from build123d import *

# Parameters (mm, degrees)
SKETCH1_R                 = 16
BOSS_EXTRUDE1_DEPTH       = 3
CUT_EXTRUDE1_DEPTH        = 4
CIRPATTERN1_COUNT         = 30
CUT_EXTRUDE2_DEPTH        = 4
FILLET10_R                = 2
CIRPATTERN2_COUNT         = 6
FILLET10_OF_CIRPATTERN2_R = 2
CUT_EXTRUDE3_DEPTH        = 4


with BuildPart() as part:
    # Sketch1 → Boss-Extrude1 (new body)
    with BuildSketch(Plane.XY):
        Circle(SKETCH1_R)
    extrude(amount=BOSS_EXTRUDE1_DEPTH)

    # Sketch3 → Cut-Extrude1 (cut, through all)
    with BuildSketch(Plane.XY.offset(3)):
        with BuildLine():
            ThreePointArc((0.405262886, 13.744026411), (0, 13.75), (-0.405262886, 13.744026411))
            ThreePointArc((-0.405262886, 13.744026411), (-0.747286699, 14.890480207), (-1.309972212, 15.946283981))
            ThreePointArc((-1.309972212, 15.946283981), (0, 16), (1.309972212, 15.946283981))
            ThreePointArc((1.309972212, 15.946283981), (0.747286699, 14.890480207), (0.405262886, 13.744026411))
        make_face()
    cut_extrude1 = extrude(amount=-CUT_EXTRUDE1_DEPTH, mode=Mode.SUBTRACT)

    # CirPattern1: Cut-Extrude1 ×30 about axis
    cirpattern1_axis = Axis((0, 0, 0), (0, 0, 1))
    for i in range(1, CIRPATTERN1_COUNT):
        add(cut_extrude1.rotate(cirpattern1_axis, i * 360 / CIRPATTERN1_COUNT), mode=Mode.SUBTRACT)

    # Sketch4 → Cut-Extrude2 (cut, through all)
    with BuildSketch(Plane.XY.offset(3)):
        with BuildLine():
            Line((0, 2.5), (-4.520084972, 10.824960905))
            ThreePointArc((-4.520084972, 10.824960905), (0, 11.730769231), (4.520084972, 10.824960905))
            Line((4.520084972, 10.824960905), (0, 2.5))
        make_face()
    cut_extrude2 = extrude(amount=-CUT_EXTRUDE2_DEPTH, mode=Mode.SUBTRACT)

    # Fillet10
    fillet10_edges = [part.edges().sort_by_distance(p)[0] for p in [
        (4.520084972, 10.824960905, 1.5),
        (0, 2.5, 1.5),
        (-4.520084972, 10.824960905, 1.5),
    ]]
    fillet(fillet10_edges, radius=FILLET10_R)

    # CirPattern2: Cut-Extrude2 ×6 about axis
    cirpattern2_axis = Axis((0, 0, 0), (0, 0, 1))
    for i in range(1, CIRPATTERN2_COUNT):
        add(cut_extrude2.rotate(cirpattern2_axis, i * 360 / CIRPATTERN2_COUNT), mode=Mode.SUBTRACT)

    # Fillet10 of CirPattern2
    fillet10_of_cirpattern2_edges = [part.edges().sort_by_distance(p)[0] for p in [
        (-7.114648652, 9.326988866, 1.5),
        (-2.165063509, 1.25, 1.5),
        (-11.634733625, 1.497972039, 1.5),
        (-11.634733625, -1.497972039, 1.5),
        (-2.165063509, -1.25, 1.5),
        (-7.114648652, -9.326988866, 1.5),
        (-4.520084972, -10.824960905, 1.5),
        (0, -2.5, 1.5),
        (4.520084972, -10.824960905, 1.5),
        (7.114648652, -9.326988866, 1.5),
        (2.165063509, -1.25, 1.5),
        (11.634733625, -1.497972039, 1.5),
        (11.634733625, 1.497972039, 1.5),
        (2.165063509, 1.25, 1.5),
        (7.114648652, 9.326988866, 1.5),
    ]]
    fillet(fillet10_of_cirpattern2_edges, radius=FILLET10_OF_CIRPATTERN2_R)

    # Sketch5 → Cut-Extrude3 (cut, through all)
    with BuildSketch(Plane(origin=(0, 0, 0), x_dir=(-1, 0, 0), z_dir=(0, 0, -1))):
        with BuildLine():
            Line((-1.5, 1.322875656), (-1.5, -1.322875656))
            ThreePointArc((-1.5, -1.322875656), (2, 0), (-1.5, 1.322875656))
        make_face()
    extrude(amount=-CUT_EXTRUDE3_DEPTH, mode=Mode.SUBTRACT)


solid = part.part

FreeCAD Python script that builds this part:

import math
import FreeCAD as App
import Part
import Sketcher

V = App.Vector
Q = App.Units.Quantity


def edges_at(feature, points):
    """Names of the edges that pass closest to the given points."""
    edges = feature.Shape.Edges
    near = lambda p: min(range(len(edges)), key=lambda i: edges[i].distToShape(Part.Vertex(*p))[0])
    return sorted({f"Edge{near(p) + 1}" for p in points})

doc = App.newDocument("Part")
params = doc.addObject("Spreadsheet::Sheet", "Params")
for row, (alias, value) in enumerate([
    ("sketch1_diameter", "32 mm"),
    ("pad1_length", "3 mm"),
    ("sketch2_radius", "6 mm"),
    ("sketch2_radius2", "16 mm"),
    ("sketch2_radius3", "13.749999 mm"),
    ("fillet_radius", "2 mm"),
    ("fillet2_radius", "2 mm"),
    ("sketch4_radius", "2 mm"),
], start=1):
    params.set(f"A{row}", alias)
    params.set(f"B{row}", "=" + value)
    params.setAlias(f"B{row}", alias)

body = doc.addObject("PartDesign::Body", "Body")

sketch1 = doc.addObject("Sketcher::SketchObject", "Sketch")
body.addObject(sketch1)
sketch1.AttachmentSupport = (doc.XY_Plane, [""])
sketch1.MapMode = "FlatFace"
sketch1.addGeometry(Part.Circle(V(0, 0, 0), V(0, 0, 1), 16), False)
sketch1.addConstraint(Sketcher.Constraint("Coincident", 0, 3, -1, 1))
sketch1.addConstraint(Sketcher.Constraint("Diameter", 0, 32.0))
sketch1.setExpression("Constraints[1]", "Params.sketch1_diameter")
pad1 = doc.addObject("PartDesign::Pad", "Pad")
body.addObject(pad1)
pad1.Profile = sketch1
pad1.setExpression("Length", "Params.pad1_length")

sketch2 = doc.addObject("Sketcher::SketchObject", "Sketch001")
body.addObject(sketch2)
sketch2.AttachmentSupport = (doc.XY_Plane, [""])
sketch2.MapMode = "FlatFace"
sketch2.AttachmentOffset = App.Placement(V(0, 0, 3), App.Rotation())
sketch2.addGeometry(Part.ArcOfCircle(Part.Circle(V(0, 0, 0), V(0, 0, 1), 13.7), math.radians(88.31), math.radians(91.69)), False)
sketch2.addGeometry(Part.ArcOfCircle(Part.Circle(V(6.3, 12.6, 0), V(0, 0, 1), 6), math.radians(146), math.radians(169)), False)
sketch2.addGeometry(Part.ArcOfCircle(Part.Circle(V(0, 0, 0), V(0, 0, 1), 16), math.radians(85.3), math.radians(94.7)), False)
sketch2.addGeometry(Part.ArcOfCircle(Part.Circle(V(-6.3, 12.6, 0), V(0, 0, 1), 6), math.radians(11), math.radians(34)), False)
sketch2.addConstraint(Sketcher.Constraint("Coincident", 0, 1, 1, 2))
sketch2.addConstraint(Sketcher.Constraint("Coincident", 1, 1, 2, 1))
sketch2.addConstraint(Sketcher.Constraint("Coincident", 2, 2, 3, 2))
sketch2.addConstraint(Sketcher.Constraint("Coincident", 3, 1, 0, 2))
sketch2.addConstraint(Sketcher.Constraint("Coincident", 0, 3, -1, 1))
sketch2.addConstraint(Sketcher.Constraint("Coincident", 2, 3, -1, 1))
sketch2.addConstraint(Sketcher.Constraint("Equal", 1, 3))
sketch2.addConstraint(Sketcher.Constraint("Symmetric", 1, 3, 3, 3, -2))
sketch2.addConstraint(Sketcher.Constraint("Radius", 1, 6.0))
sketch2.addConstraint(Sketcher.Constraint("Radius", 2, 16.0))
sketch2.addConstraint(Sketcher.Constraint("Radius", 0, 13.749999))
sketch2.addConstraint(Sketcher.Constraint("DistanceX", -1, 1, 1, 3, 6.297219))
sketch2.addConstraint(Sketcher.Constraint("DistanceX", 3, 3, 0, 1, 6.702482))
sketch2.setExpression("Constraints[8]", "Params.sketch2_radius")
sketch2.setExpression("Constraints[9]", "Params.sketch2_radius2")
sketch2.setExpression("Constraints[10]", "Params.sketch2_radius3")
pocket1 = doc.addObject("PartDesign::Pocket", "Pocket")
body.addObject(pocket1)
pocket1.Profile = sketch2
pocket1.Type = "ThroughAll"
doc.recompute()

polarpattern = doc.addObject("PartDesign::PolarPattern", "PolarPattern")
body.addObject(polarpattern)
polarpattern.Originals = [pocket1]
polarpattern.Axis = (doc.Z_Axis, [""])
polarpattern.Angle = 360
polarpattern.Occurrences = 30
body.Tip = polarpattern

sketch3 = doc.addObject("Sketcher::SketchObject", "Sketch002")
body.addObject(sketch3)
sketch3.AttachmentSupport = (doc.XY_Plane, [""])
sketch3.MapMode = "FlatFace"
sketch3.AttachmentOffset = App.Placement(V(0, 0, 3), App.Rotation())
sketch3.addGeometry(Part.LineSegment(V(-5, 11, 0), V(0, 2, 0)), False)
sketch3.addGeometry(Part.LineSegment(V(0, 2, 0), V(5, 11, 0)), False)
sketch3.addGeometry(Part.ArcOfCircle(Part.Circle(V(0, 0, 0), V(0, 0, 1), 12), math.radians(67), math.radians(113)), False)
sketch3.addConstraint(Sketcher.Constraint("Coincident", 0, 2, 1, 1))
sketch3.addConstraint(Sketcher.Constraint("Coincident", 1, 2, 2, 1))
sketch3.addConstraint(Sketcher.Constraint("Coincident", 2, 2, 0, 1))
sketch3.addConstraint(Sketcher.Constraint("Coincident", 2, 3, -1, 1))
sketch3.addConstraint(Sketcher.Constraint("PointOnObject", 0, 2, -2))
sketch3.addConstraint(Sketcher.Constraint("Horizontal", 1, 2, 2, 2))
sketch3.addConstraint(Sketcher.Constraint("Angle", 0, Q("-61.5 deg")))
sketch3.addConstraint(Sketcher.Constraint("DistanceY", -1, 1, 0, 2, 2.5))
sketch3.addConstraint(Sketcher.Constraint("Radius", 2, 11.730769))
pocket2 = doc.addObject("PartDesign::Pocket", "Pocket001")
body.addObject(pocket2)
pocket2.Profile = sketch3
pocket2.Type = "ThroughAll"
doc.recompute()

fillet = doc.addObject("PartDesign::Fillet", "Fillet")
body.addObject(fillet)
fillet.Base = (pocket2, edges_at(pocket2, [(4.52, 10.825, 1.5), (0, 2.5, 1.5), (-4.52, 10.825, 1.5)]))
fillet.setExpression("Radius", "Params.fillet_radius")
doc.recompute()

polarpattern2 = doc.addObject("PartDesign::PolarPattern", "PolarPattern001")
body.addObject(polarpattern2)
polarpattern2.Originals = [pocket2]
polarpattern2.Axis = (doc.Z_Axis, [""])
polarpattern2.Angle = 360
polarpattern2.Occurrences = 6
body.Tip = polarpattern2
doc.recompute()

fillet2 = doc.addObject("PartDesign::Fillet", "Fillet001")
body.addObject(fillet2)
fillet2.Base = (polarpattern2, edges_at(polarpattern2, [
    (-7.115, 9.327, 1.5),
    (-2.165, 1.25, 1.5),
    (-11.635, 1.498, 1.5),
    (-11.635, -1.498, 1.5),
    (-2.165, -1.25, 1.5),
    (-7.115, -9.327, 1.5),
    (-4.52, -10.825, 1.5),
    (0, -2.5, 1.5),
    (4.52, -10.825, 1.5),
    (7.115, -9.327, 1.5),
    (2.165, -1.25, 1.5),
    (11.635, -1.498, 1.5),
    (11.635, 1.498, 1.5),
    (2.165, 1.25, 1.5),
    (7.115, 9.327, 1.5),
]))
fillet2.setExpression("Radius", "Params.fillet2_radius")

sketch4 = doc.addObject("Sketcher::SketchObject", "Sketch003")
body.addObject(sketch4)
sketch4.AttachmentSupport = (doc.XY_Plane, [""])
sketch4.MapMode = "FlatFace"
sketch4.addGeometry(Part.LineSegment(V(1.5, 1.3, 0), V(1.5, -1.3, 0)), False)
sketch4.addGeometry(Part.ArcOfCircle(Part.Circle(V(0, 0, 0), V(0, 0, 1), 2), math.radians(41), math.radians(319)), False)
sketch4.addConstraint(Sketcher.Constraint("Coincident", 0, 1, 1, 1))
sketch4.addConstraint(Sketcher.Constraint("Coincident", 1, 2, 0, 2))
sketch4.addConstraint(Sketcher.Constraint("Vertical", 0))
sketch4.addConstraint(Sketcher.Constraint("Coincident", 1, 3, -1, 1))
sketch4.addConstraint(Sketcher.Constraint("Radius", 1, 2.0))
sketch4.addConstraint(Sketcher.Constraint("DistanceX", -1, 1, 0, 1, 1.5))
sketch4.setExpression("Constraints[4]", "Params.sketch4_radius")
pocket3 = doc.addObject("PartDesign::Pocket", "Pocket002")
body.addObject(pocket3)
pocket3.Profile = sketch4
pocket3.Type = "ThroughAll"
pocket3.Reversed = True

doc.recompute()
